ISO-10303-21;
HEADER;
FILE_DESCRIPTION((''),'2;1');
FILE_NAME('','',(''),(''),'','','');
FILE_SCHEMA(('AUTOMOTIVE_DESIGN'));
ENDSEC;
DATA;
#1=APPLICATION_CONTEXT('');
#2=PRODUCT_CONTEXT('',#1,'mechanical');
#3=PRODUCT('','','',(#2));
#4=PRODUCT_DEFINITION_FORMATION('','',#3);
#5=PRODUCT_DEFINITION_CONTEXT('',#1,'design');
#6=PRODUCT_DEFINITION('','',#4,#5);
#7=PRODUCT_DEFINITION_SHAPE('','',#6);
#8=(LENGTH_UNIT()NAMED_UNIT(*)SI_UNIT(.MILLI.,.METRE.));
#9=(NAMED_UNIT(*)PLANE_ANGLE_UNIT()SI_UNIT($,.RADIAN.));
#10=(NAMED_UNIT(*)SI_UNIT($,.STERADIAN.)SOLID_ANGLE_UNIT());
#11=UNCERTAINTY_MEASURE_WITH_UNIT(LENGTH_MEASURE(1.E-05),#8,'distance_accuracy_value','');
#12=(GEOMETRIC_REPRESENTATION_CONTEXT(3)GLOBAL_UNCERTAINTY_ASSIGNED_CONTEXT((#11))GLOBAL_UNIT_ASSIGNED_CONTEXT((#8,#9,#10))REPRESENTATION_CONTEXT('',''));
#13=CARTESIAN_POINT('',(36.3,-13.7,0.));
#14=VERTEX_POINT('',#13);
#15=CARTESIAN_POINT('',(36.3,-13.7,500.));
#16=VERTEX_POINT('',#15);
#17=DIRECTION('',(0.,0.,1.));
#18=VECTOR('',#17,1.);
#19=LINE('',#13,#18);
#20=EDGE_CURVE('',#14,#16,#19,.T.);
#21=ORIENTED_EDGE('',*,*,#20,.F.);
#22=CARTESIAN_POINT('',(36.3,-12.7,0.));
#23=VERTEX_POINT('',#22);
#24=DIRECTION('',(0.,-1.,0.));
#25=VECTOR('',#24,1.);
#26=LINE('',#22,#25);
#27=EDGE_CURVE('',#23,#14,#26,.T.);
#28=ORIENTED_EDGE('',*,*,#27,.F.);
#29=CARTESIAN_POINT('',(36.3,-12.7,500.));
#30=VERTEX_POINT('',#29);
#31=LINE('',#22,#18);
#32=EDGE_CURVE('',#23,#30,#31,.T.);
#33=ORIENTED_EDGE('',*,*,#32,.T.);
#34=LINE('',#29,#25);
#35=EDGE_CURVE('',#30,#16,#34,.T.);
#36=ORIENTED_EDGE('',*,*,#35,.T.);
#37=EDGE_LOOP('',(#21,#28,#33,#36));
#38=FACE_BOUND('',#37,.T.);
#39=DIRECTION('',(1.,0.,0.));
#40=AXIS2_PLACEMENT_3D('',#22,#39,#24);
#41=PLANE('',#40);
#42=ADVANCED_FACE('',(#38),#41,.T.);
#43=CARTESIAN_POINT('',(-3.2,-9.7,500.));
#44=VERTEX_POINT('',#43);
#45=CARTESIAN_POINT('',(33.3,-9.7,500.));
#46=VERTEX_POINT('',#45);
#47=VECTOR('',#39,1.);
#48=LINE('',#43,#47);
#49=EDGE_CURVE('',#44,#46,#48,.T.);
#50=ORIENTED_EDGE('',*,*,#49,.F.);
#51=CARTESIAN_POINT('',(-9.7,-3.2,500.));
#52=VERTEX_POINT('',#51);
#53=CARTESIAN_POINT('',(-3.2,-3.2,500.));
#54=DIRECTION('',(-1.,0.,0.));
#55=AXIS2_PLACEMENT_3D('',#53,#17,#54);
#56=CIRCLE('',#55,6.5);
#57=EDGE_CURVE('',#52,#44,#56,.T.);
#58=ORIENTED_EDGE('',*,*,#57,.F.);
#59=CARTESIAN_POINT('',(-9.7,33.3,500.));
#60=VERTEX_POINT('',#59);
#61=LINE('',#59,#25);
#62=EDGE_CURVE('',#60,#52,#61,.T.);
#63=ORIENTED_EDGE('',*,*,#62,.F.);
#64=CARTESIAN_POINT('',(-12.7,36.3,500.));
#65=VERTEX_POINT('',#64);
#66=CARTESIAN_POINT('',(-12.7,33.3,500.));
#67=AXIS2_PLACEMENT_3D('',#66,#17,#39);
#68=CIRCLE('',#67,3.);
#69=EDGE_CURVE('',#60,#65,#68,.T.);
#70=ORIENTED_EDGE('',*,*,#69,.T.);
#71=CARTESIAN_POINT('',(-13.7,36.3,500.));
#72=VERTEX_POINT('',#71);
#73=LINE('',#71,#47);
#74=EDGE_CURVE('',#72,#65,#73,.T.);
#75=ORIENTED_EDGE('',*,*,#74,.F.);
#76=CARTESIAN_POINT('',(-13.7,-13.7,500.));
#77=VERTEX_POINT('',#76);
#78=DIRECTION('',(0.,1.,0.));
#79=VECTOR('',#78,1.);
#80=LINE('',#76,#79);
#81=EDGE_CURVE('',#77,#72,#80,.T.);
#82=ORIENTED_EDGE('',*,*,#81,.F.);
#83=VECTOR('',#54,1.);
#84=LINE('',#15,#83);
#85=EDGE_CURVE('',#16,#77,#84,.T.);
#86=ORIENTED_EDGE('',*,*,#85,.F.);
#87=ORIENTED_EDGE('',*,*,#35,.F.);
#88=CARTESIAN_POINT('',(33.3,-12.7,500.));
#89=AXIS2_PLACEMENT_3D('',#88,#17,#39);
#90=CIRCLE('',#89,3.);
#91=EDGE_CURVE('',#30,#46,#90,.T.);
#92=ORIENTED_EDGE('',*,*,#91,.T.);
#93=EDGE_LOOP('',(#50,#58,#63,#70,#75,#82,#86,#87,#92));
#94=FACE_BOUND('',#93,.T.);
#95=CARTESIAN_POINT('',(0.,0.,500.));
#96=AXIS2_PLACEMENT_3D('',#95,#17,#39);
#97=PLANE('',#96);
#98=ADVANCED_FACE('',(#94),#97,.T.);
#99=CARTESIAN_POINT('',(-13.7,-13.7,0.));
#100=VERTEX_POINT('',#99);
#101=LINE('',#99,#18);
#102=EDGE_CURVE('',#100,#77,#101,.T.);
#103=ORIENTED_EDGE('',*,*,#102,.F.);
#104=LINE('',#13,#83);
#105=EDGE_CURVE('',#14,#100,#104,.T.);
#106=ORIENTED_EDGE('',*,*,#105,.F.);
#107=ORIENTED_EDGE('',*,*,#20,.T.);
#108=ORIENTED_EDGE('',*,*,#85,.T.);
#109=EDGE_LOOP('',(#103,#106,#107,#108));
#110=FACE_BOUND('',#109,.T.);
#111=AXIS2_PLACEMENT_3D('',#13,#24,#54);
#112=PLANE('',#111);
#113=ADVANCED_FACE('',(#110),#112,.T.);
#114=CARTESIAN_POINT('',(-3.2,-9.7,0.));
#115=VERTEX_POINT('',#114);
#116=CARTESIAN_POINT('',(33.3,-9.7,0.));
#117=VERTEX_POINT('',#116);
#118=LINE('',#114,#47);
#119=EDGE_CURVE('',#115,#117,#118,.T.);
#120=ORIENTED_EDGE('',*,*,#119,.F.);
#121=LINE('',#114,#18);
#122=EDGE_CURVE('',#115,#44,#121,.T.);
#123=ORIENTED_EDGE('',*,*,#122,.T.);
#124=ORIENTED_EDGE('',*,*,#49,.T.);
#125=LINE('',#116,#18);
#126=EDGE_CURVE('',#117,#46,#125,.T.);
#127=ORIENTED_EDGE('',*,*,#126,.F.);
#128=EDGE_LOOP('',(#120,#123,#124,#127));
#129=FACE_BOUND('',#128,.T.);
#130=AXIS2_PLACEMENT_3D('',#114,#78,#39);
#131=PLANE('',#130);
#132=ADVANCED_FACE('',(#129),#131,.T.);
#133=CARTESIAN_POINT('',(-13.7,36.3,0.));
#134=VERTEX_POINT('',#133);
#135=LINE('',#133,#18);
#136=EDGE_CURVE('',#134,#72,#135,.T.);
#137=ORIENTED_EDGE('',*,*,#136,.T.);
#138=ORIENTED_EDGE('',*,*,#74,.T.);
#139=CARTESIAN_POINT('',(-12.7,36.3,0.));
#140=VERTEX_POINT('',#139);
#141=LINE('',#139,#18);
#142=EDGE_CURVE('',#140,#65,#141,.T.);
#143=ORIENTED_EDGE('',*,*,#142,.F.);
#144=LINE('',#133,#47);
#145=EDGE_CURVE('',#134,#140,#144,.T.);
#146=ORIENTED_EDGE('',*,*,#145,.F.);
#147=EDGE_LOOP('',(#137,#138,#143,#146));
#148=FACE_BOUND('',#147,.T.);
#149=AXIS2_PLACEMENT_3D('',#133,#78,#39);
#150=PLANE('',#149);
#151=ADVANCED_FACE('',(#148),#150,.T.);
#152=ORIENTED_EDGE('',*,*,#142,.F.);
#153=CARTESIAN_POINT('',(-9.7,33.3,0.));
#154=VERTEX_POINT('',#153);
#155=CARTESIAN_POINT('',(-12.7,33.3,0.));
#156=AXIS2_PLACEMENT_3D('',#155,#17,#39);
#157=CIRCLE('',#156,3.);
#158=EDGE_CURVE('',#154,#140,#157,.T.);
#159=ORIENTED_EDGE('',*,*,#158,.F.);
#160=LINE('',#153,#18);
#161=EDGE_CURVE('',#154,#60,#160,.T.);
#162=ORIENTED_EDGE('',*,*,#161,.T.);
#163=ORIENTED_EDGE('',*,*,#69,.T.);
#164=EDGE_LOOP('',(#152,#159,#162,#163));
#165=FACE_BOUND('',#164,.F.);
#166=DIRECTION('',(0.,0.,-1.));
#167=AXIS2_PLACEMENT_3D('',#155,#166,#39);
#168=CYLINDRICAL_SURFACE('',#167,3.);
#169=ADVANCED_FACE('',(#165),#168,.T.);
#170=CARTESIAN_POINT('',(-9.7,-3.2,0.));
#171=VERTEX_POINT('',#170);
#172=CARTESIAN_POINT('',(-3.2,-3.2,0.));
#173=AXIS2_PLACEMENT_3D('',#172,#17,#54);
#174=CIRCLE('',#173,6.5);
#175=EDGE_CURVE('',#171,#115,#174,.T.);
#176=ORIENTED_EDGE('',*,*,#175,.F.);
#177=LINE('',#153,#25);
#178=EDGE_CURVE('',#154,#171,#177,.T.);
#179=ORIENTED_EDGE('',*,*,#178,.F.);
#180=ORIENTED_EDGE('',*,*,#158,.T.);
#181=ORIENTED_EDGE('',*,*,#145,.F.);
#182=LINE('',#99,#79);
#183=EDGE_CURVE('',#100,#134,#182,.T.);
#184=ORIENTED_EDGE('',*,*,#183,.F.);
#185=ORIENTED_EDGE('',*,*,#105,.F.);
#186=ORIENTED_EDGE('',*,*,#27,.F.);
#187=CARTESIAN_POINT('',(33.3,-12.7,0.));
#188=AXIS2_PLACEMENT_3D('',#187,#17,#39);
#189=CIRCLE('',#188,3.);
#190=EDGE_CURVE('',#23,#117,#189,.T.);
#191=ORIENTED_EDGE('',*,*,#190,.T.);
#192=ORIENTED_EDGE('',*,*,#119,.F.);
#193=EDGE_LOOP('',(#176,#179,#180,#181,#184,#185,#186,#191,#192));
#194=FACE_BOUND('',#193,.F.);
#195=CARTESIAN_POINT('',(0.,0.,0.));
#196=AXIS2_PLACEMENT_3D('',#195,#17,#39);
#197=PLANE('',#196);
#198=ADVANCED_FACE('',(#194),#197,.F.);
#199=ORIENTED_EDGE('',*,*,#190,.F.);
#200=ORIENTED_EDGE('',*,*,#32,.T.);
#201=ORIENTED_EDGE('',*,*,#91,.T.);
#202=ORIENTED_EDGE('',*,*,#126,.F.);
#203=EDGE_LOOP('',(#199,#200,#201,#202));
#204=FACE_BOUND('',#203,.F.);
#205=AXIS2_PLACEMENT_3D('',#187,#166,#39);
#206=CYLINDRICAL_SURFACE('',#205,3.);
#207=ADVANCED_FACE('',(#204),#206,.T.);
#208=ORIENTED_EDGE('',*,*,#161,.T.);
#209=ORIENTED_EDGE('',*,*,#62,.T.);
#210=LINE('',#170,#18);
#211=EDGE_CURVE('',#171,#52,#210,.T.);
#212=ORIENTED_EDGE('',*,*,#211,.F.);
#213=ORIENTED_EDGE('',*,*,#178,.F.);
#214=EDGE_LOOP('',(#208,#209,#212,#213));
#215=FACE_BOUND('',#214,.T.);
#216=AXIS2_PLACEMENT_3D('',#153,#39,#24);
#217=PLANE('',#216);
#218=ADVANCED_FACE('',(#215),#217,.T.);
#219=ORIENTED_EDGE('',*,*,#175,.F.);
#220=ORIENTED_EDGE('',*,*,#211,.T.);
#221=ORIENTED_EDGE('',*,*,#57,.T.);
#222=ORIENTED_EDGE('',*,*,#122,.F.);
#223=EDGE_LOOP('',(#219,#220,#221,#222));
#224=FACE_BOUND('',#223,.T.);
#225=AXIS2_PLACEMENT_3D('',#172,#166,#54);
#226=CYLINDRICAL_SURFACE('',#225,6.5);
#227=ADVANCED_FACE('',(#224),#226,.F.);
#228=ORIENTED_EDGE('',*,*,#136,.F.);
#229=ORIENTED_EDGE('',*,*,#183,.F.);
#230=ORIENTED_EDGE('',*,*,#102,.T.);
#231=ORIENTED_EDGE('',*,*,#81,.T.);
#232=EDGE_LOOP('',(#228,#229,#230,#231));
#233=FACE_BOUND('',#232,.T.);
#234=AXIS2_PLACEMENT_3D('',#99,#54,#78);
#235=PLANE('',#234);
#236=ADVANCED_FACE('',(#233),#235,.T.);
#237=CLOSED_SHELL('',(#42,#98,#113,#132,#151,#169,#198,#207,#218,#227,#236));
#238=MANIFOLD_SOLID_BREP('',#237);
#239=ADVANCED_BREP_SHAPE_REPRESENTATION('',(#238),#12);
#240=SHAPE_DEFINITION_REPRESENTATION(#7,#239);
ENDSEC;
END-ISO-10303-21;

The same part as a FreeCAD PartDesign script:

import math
import FreeCAD as App
import Part
import Sketcher
from FreeCAD import Vector
Q = App.Units.Quantity

doc = App.newDocument("Part")
body = doc.addObject("PartDesign::Body", "Body")

# Sketch on XY plane
sketch1 = body.newObject("Sketcher::SketchObject", "Sketch")
sketch1.AttachmentSupport = (doc.getObject("XY_Plane"), [""])
sketch1.MapMode = "FlatFace"
sketch1.addGeometry(Part.LineSegment(Vector(-13.7, -13.7, 0), Vector(36.3, -13.7, 0)), False)
sketch1.addGeometry(Part.LineSegment(Vector(36.3, -13.7, 0), Vector(36.3, -12.7, 0)), False)
sketch1.addGeometry(Part.ArcOfCircle(Part.Circle(Vector(33.3, -12.7, 0), Vector(0, 0, 1), 3), math.radians(0), math.radians(90)), False)
sketch1.addGeometry(Part.LineSegment(Vector(33.3, -9.7, 0), Vector(-3.2, -9.7, 0)), False)
sketch1.addGeometry(Part.ArcOfCircle(Part.Circle(Vector(-3.2, -3.2, 0), Vector(0, 0, 1), 6.5), math.radians(180), math.radians(270)), False)
sketch1.addGeometry(Part.LineSegment(Vector(-9.7, -3.2, 0), Vector(-9.7, 33.3, 0)), False)
sketch1.addGeometry(Part.ArcOfCircle(Part.Circle(Vector(-12.7, 33.3, 0), Vector(0, 0, 1), 3), math.radians(0), math.radians(90)), False)
sketch1.addGeometry(Part.LineSegment(Vector(-12.7, 36.3, 0), Vector(-13.7, 36.3, 0)), False)
sketch1.addGeometry(Part.LineSegment(Vector(-13.7, 36.3, 0), Vector(-13.7, -13.7, 0)), False)
sketch1.addConstraint(Sketcher.Constraint("Coincident", 0, 2, 1, 1))
sketch1.addConstraint(Sketcher.Constraint("Tangent", 1, 2, 2, 1))
sketch1.addConstraint(Sketcher.Constraint("Tangent", 2, 2, 3, 1))
sketch1.addConstraint(Sketcher.Constraint("Tangent", 3, 2, 4, 2))
sketch1.addConstraint(Sketcher.Constraint("Tangent", 4, 1, 5, 1))
sketch1.addConstraint(Sketcher.Constraint("Tangent", 5, 2, 6, 1))
sketch1.addConstraint(Sketcher.Constraint("Tangent", 6, 2, 7, 1))
sketch1.addConstraint(Sketcher.Constraint("Coincident", 7, 2, 8, 1))
sketch1.addConstraint(Sketcher.Constraint("Coincident", 8, 2, 0, 1))
sketch1.addConstraint(Sketcher.Constraint("Horizontal", 0))
sketch1.addConstraint(Sketcher.Constraint("Vertical", 1))
sketch1.addConstraint(Sketcher.Constraint("Horizontal", 3))
sketch1.addConstraint(Sketcher.Constraint("Vertical", 5))
sketch1.addConstraint(Sketcher.Constraint("Horizontal", 7))
sketch1.addConstraint(Sketcher.Constraint("Vertical", 8))
sketch1.addConstraint(Sketcher.Constraint("Equal", 2, 6))
sketch1.addConstraint(Sketcher.Constraint("Equal", 7, 1))
sketch1.addConstraint(Sketcher.Constraint("Equal", 3, 5))
sketch1.addConstraint(Sketcher.Constraint("Radius", 2, Q("3 mm")))
sketch1.addConstraint(Sketcher.Constraint("Radius", 4, Q("6.5 mm")))
sketch1.addConstraint(Sketcher.Constraint("DistanceX", 0, 1, 0, 2, Q("50 mm")))
sketch1.addConstraint(Sketcher.Constraint("DistanceY", 0, 2, 2, 2, Q("4 mm")))
sketch1.addConstraint(Sketcher.Constraint("DistanceY", 0, 2, -1, 1, Q("13.7 mm")))
sketch1.addConstraint(Sketcher.Constraint("DistanceX", 7, 2, -1, 1, Q("13.7 mm")))
pad1 = body.newObject("PartDesign::Pad", "Pad")
pad1.Profile = sketch1
pad1.Length = 500

doc.recompute()
